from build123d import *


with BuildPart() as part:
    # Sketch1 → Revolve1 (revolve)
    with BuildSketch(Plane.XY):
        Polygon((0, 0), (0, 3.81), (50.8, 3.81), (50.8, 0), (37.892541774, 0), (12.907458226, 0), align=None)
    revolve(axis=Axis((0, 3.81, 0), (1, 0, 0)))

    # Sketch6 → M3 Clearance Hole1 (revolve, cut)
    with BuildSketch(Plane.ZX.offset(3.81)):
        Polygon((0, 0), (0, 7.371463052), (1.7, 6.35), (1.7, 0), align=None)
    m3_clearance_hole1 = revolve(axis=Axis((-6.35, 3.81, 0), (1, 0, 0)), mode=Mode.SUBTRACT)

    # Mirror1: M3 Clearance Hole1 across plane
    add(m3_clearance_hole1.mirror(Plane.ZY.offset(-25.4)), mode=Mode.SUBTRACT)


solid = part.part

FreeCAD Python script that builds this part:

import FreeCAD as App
import Part
import Sketcher

V = App.Vector
Q = App.Units.Quantity


def add_polygon(sketch, points):
    """Adds a closed chain of lines whose ends are joined by coincident constraints."""
    first, n = sketch.GeometryCount, len(points)
    for a, b in zip(points, points[1:] + points[:1]):
        sketch.addGeometry(Part.LineSegment(App.Vector(*a, 0), App.Vector(*b, 0)), False)
    for i in range(n):
        sketch.addConstraint(Sketcher.Constraint("Coincident", first + i, 2, first + (i + 1) % n, 1))

doc = App.newDocument("Part")
body = doc.addObject("PartDesign::Body", "Body")

sketch1 = doc.addObject("Sketcher::SketchObject", "Sketch")
body.addObject(sketch1)
sketch1.AttachmentSupport = (doc.XY_Plane, [""])
sketch1.MapMode = "FlatFace"
add_polygon(sketch1, [(0, 3.8), (0, 0), (50.8, 0), (50.8, 3.8)])
sketch1.addGeometry(Part.LineSegment(V(0, 3.8, 0), V(50.8, 3.8, 0)), True)
sketch1.addConstraint(Sketcher.Constraint("Vertical", 0))
sketch1.addConstraint(Sketcher.Constraint("Horizontal", 1))
sketch1.addConstraint(Sketcher.Constraint("Vertical", 2))
sketch1.addConstraint(Sketcher.Constraint("Horizontal", 3))
sketch1.addConstraint(Sketcher.Constraint("Horizontal", 4))
sketch1.addConstraint(Sketcher.Constraint("Coincident", 0, 2, -1, 1))
sketch1.addConstraint(Sketcher.Constraint("Coincident", 4, 1, 3, 2))
sketch1.addConstraint(Sketcher.Constraint("Vertical", 1, 2, 4, 2))
sketch1.addConstraint(Sketcher.Constraint("DistanceX", 1, 1, 1, 2, Q("2 in")))
sketch1.addConstraint(Sketcher.Constraint("DistanceY", 0, 2, 0, 1, Q("0.15 in")))
revolution = doc.addObject("PartDesign::Revolution", "Revolution")
body.addObject(revolution)
revolution.Profile = sketch1
revolution.ReferenceAxis = (sketch1, ["Axis0"])
revolution.Angle = 360

sketch2 = doc.addObject("Sketcher::SketchObject", "Sketch001")
body.addObject(sketch2)
sketch2.AttachmentSupport = (doc.XZ_Plane, [""])
sketch2.MapMode = "FlatFace"
sketch2.AttachmentOffset = App.Placement(V(0, 0, -0.15 * 25.4), App.Rotation())
add_polygon(sketch2, [(7.4, 0), (0, 0), (0, 1.7), (6.3, 1.7)])
sketch2.addConstraint(Sketcher.Constraint("Horizontal", 0))
sketch2.addConstraint(Sketcher.Constraint("Vertical", 1))
sketch2.addConstraint(Sketcher.Constraint("Horizontal", 2))
sketch2.addConstraint(Sketcher.Constraint("Coincident", 0, 2, -1, 1))
sketch2.addConstraint(Sketcher.Constraint("Angle", 3, Q("-59 deg")))
sketch2.addConstraint(Sketcher.Constraint("DistanceX", 2, 1, 2, 2, Q("0.25 in")))
sketch2.addConstraint(Sketcher.Constraint("DistanceY", 1, 1, 1, 2, 1.7))
groove = doc.addObject("PartDesign::Groove", "Groove")
body.addObject(groove)
groove.Profile = sketch2
groove.ReferenceAxis = (sketch2, ["H_Axis"])
groove.Angle = 360
doc.recompute()

datumplane = doc.addObject("PartDesign::Plane", "DatumPlane")
body.addObject(datumplane)
datumplane.AttachmentSupport = (doc.YZ_Plane, [""])
datumplane.MapMode = "FlatFace"
datumplane.AttachmentOffset = App.Placement(V(0, 0, 1 * 25.4), App.Rotation())
mirrored = doc.addObject("PartDesign::Mirrored", "Mirrored")
body.addObject(mirrored)
mirrored.Originals = [groove]
mirrored.MirrorPlane = (datumplane, [""])
body.Tip = mirrored

doc.recompute()
